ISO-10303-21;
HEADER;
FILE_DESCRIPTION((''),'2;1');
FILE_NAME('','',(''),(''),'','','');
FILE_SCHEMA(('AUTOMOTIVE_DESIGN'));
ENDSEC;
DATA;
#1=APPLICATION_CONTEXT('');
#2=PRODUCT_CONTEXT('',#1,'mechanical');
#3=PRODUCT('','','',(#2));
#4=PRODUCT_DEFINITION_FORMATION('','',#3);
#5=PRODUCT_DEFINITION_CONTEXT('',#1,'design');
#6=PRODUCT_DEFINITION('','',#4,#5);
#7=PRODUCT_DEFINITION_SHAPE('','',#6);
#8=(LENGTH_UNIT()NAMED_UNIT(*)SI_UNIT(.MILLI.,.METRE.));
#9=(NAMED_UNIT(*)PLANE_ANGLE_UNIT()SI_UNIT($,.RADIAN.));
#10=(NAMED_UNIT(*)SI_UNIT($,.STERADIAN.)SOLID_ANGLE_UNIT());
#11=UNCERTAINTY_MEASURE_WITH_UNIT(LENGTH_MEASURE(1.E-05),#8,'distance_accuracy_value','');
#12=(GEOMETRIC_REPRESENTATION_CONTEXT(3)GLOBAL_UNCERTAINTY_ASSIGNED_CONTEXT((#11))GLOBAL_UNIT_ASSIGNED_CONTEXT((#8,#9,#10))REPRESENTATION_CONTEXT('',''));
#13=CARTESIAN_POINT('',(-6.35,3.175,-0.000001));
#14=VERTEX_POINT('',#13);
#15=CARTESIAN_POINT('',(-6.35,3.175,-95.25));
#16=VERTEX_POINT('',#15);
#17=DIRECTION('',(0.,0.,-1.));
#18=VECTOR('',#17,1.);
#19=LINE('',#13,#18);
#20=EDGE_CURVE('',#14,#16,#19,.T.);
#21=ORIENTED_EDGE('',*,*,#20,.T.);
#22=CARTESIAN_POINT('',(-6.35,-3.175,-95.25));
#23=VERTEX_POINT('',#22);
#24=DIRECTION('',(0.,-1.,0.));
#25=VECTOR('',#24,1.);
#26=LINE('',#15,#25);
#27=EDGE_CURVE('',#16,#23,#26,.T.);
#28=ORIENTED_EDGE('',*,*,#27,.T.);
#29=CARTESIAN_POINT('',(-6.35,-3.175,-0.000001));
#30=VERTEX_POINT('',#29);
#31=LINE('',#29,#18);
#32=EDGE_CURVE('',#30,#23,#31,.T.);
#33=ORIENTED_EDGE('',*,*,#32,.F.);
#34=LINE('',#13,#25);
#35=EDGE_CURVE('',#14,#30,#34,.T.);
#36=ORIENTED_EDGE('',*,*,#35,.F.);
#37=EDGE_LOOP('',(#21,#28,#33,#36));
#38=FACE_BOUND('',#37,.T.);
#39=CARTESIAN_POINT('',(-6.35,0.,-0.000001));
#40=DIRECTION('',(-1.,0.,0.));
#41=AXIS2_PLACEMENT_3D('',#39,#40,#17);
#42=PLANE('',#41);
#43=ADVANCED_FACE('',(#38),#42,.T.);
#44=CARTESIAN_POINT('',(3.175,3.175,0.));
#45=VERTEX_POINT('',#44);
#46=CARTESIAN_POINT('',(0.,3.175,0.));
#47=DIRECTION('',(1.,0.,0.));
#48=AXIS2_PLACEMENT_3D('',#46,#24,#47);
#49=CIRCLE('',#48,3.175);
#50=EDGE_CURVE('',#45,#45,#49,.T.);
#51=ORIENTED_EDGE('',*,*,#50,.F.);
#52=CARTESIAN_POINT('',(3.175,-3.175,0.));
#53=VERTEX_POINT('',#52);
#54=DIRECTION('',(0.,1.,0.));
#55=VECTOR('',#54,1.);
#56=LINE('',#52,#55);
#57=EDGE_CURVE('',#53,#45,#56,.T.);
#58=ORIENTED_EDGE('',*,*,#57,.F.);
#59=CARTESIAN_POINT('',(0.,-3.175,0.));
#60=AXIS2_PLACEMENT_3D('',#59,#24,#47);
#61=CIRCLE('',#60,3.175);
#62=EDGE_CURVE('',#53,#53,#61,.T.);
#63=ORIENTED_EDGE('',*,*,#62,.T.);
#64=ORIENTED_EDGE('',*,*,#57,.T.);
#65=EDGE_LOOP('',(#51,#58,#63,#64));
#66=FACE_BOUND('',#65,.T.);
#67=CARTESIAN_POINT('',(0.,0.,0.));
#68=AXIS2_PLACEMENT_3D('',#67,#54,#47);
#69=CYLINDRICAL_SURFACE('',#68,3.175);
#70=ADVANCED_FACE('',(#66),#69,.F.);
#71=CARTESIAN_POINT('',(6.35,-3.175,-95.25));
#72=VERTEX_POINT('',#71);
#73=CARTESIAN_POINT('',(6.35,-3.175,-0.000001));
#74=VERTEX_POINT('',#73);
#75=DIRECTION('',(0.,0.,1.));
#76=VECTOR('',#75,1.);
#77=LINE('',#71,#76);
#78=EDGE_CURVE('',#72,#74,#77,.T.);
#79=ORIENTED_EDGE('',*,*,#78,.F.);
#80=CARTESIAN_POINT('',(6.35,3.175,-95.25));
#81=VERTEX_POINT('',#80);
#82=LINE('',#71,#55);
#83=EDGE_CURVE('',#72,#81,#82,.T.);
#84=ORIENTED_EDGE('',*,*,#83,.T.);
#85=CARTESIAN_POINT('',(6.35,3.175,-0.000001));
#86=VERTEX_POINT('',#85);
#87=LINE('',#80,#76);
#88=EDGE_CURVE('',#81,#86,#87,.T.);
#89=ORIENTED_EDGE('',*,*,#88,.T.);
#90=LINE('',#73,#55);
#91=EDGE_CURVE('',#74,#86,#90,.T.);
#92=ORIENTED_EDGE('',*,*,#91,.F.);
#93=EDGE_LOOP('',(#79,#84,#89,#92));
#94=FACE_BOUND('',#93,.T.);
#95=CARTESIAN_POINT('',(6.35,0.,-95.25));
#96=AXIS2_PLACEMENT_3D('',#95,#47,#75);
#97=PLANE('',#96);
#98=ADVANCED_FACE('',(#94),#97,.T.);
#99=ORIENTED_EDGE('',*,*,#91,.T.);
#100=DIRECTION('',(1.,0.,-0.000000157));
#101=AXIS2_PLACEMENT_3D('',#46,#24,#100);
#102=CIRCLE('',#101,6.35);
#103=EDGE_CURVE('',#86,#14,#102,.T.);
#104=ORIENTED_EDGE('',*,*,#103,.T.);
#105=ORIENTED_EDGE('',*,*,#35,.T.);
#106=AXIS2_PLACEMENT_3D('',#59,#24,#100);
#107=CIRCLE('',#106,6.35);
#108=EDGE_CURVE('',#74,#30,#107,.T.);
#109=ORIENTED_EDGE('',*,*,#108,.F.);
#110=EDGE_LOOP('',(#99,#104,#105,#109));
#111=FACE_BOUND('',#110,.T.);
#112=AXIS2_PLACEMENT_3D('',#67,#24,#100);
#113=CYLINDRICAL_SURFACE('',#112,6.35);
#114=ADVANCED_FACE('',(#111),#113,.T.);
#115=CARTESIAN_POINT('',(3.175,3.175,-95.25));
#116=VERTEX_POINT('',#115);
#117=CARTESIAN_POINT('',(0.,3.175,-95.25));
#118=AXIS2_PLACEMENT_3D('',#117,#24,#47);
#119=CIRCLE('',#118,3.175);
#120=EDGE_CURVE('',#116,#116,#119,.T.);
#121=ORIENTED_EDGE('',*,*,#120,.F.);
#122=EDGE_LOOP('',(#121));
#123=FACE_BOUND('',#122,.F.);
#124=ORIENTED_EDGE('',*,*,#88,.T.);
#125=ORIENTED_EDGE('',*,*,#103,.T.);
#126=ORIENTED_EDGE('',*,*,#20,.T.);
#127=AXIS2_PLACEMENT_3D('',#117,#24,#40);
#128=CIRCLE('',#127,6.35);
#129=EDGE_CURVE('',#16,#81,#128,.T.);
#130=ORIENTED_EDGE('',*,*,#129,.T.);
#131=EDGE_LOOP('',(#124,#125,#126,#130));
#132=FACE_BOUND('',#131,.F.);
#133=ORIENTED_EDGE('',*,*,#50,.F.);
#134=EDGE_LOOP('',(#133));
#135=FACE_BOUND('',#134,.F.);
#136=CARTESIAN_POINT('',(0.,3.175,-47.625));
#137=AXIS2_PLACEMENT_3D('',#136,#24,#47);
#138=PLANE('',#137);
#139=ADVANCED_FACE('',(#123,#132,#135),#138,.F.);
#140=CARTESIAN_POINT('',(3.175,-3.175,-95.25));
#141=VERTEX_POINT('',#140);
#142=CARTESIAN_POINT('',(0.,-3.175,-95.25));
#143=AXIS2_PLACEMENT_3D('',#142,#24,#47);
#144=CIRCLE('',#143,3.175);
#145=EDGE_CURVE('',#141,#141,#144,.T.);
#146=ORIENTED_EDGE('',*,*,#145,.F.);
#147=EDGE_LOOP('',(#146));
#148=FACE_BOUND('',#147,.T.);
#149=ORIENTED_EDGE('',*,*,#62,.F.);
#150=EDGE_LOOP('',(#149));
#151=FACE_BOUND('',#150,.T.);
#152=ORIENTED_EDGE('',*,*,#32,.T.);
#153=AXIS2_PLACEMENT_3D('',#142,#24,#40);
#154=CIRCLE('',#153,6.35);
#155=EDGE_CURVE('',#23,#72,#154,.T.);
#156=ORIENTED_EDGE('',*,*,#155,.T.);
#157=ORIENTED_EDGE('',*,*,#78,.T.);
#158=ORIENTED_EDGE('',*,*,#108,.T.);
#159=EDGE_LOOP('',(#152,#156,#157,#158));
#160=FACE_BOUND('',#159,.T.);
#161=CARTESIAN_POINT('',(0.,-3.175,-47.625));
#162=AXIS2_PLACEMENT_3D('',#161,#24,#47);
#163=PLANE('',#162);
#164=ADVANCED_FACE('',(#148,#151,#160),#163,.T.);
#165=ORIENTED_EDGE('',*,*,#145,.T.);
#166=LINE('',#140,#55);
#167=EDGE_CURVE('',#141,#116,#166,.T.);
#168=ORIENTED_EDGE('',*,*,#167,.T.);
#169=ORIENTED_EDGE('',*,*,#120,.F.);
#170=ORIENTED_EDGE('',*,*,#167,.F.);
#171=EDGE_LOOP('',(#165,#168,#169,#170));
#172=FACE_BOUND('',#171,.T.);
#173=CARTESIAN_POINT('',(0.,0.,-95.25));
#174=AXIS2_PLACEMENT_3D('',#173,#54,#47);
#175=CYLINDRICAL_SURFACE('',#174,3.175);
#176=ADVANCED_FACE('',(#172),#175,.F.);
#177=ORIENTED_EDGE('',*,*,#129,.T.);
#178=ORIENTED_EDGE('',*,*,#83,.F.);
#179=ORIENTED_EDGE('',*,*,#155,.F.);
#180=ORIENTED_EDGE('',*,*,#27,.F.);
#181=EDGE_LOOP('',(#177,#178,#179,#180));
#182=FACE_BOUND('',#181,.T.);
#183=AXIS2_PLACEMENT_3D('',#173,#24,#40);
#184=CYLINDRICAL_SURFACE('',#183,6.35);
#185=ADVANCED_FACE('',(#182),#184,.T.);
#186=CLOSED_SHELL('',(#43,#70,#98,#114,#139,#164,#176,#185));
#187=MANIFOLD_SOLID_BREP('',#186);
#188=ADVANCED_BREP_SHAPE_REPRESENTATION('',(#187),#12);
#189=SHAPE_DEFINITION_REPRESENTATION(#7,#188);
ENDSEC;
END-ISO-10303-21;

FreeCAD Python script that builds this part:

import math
import FreeCAD as App
import Part
import Sketcher
Q = App.Units.Quantity

doc = App.newDocument("Part")
body = doc.addObject("PartDesign::Body", "Body")

sketch1 = body.newObject("Sketcher::SketchObject", "Sketch")
sketch1.AttachmentSupport = (doc.getObject("XZ_Plane"), [""])
sketch1.MapMode = "FlatFace"
sketch1.addGeometry(Part.ArcOfCircle(Part.Circle(App.Vector(0, 0, 0), App.Vector(0, 0, 1), 6.3), math.radians(0), math.radians(180)), False)
sketch1.addGeometry(Part.LineSegment(App.Vector(-6.3, 0, 0), App.Vector(-6.3, -95.2, 0)), False)
sketch1.addGeometry(Part.ArcOfCircle(Part.Circle(App.Vector(0, -95.2, 0), App.Vector(0, 0, 1), 6.3), math.radians(180), math.radians(360)), False)
sketch1.addGeometry(Part.LineSegment(App.Vector(6.3, -95.2, 0), App.Vector(6.3, 0, 0)), False)
sketch1.addGeometry(Part.Circle(App.Vector(0, -95.2, 0), App.Vector(0, 0, 1), 3.2), False)
sketch1.addGeometry(Part.Circle(App.Vector(0, 0, 0), App.Vector(0, 0, 1), 3.2), False)
sketch1.addConstraint(Sketcher.Constraint("Tangent", 0, 2, 1, 1))
sketch1.addConstraint(Sketcher.Constraint("Tangent", 1, 2, 2, 1))
sketch1.addConstraint(Sketcher.Constraint("Tangent", 2, 2, 3, 1))
sketch1.addConstraint(Sketcher.Constraint("Tangent", 3, 2, 0, 1))
sketch1.addConstraint(Sketcher.Constraint("Vertical", 1))
sketch1.addConstraint(Sketcher.Constraint("Vertical", 3))
sketch1.addConstraint(Sketcher.Constraint("Coincident", 0, 3, -1, 1))
sketch1.addConstraint(Sketcher.Constraint("Coincident", 5, 3, -1, 1))
sketch1.addConstraint(Sketcher.Constraint("Coincident", 4, 3, 2, 3))
sketch1.addConstraint(Sketcher.Constraint("Equal", 4, 5))
sketch1.addConstraint(Sketcher.Constraint("Diameter", 4, Q("0.25 in")))
sketch1.addConstraint(Sketcher.Constraint("Radius", 0, Q("0.25 in")))
sketch1.addConstraint(Sketcher.Constraint("DistanceY", 1, 2, 1, 1, Q("3.75 in")))
pad1 = body.newObject("PartDesign::Pad", "Pad")
pad1.Profile = sketch1
pad1.Length = Q("0.25 in")
pad1.Midplane = True

doc.recompute()
